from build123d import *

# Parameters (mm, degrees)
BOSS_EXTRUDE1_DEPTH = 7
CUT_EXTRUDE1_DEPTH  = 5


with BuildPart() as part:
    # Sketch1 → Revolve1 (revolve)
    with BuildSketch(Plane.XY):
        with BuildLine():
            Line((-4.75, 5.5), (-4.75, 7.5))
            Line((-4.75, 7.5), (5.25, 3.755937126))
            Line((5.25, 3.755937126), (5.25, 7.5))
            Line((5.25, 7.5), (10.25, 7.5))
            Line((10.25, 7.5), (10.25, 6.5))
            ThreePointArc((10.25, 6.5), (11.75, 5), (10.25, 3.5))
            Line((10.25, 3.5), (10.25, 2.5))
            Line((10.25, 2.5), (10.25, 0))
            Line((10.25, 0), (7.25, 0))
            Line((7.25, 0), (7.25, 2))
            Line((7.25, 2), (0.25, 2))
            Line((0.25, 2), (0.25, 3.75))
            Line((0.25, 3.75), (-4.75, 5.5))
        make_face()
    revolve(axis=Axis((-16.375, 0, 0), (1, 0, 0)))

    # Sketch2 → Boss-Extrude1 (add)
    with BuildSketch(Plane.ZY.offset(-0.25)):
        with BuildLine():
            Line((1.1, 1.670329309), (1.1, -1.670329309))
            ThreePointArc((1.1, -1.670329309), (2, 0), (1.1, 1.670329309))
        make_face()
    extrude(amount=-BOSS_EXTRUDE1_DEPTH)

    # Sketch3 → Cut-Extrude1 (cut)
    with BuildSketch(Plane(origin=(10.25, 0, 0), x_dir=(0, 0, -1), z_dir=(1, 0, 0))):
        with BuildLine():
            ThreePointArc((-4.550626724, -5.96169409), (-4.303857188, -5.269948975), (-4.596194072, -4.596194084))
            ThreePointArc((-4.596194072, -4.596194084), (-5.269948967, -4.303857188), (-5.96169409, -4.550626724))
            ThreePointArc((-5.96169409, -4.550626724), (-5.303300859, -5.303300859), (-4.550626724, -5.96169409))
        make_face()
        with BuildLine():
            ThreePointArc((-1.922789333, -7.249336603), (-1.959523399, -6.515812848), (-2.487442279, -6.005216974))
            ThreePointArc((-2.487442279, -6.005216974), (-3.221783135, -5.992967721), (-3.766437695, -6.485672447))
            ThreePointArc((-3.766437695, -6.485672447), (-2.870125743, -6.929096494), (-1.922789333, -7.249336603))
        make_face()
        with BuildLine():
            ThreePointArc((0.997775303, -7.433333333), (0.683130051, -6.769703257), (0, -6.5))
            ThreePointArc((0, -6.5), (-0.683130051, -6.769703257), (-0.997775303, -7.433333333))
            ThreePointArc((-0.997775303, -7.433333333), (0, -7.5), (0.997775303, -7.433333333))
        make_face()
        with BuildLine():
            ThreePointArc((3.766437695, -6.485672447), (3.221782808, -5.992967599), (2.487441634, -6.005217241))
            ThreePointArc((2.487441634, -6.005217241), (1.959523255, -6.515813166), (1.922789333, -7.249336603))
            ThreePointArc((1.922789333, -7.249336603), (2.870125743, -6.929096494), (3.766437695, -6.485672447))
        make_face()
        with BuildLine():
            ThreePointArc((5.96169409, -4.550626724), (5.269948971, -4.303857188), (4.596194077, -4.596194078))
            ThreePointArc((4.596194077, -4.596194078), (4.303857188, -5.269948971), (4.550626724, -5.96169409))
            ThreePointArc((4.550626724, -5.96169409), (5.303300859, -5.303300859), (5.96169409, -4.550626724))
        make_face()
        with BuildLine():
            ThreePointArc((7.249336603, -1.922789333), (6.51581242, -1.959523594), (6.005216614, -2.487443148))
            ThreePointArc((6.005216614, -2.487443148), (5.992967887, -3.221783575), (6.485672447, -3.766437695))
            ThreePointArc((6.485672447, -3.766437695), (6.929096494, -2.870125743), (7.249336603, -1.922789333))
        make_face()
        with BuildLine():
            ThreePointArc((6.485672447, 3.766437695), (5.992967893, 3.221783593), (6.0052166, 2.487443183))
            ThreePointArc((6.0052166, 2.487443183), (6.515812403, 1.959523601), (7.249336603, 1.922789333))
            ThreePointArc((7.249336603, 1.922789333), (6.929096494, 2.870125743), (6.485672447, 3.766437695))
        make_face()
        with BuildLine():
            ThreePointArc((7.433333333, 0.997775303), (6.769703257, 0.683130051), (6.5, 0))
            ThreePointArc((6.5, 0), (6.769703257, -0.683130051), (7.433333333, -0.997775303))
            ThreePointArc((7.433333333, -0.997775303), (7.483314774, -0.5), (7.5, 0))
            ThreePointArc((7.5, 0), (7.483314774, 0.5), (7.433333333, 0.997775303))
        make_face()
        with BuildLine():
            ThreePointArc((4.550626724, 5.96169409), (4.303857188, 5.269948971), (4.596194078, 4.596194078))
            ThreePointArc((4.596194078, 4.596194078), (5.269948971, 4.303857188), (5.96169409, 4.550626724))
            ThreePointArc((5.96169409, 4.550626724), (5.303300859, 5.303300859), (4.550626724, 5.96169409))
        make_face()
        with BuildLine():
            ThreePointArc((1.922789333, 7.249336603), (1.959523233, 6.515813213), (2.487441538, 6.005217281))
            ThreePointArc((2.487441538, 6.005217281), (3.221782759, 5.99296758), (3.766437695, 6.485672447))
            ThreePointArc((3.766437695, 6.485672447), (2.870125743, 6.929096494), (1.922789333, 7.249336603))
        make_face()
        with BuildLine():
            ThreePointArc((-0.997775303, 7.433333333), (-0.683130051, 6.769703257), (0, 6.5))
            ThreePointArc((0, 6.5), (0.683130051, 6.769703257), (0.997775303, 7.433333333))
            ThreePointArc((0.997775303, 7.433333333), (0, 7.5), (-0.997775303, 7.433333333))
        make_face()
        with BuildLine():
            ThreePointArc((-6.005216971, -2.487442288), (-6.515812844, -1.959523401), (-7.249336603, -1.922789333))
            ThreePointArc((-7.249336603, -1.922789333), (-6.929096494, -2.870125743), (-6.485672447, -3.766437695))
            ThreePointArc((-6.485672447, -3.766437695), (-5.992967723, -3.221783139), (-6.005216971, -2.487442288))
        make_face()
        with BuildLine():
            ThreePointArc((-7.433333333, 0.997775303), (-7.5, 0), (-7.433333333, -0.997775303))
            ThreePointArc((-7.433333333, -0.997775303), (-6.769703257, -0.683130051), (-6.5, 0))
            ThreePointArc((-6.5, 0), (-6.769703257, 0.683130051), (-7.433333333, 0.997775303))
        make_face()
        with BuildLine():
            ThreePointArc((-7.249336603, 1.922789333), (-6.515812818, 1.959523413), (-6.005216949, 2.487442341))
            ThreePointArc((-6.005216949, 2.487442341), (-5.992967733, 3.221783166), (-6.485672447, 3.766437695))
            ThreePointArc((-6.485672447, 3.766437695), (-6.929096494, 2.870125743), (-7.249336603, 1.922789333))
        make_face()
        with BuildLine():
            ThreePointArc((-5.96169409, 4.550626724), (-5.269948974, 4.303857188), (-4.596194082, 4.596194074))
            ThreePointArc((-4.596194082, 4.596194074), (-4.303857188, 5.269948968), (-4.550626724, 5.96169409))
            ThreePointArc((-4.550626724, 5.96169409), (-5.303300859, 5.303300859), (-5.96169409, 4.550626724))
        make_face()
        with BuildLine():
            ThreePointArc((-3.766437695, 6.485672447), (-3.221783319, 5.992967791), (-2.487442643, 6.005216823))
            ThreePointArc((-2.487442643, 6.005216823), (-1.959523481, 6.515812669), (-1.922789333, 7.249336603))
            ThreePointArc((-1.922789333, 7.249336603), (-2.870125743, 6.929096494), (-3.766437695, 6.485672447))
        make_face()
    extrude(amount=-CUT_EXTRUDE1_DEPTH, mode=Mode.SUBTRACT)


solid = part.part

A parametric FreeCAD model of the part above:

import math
import FreeCAD as App
import Part
import Sketcher

V = App.Vector
Q = App.Units.Quantity

doc = App.newDocument("Part")
body = doc.addObject("PartDesign::Body", "Body")

# Sketch on XY plane
sketch1 = body.newObject("Sketcher::SketchObject", "Sketch")
sketch1.AttachmentSupport = (doc.getObject("XY_Plane"), [""])
sketch1.MapMode = "FlatFace"
sketch1.addGeometry(Part.LineSegment(V(-4.8, 7.5, 0), V(-4.8, 5.5, 0)), False)
sketch1.addGeometry(Part.LineSegment(V(-4.8, 5.5, 0), V(0.2, 3.8, 0)), False)
sketch1.addGeometry(Part.LineSegment(V(0.2, 3.8, 0), V(0.2, 2, 0)), False)
sketch1.addGeometry(Part.LineSegment(V(0.2, 2, 0), V(7.2, 2, 0)), False)
sketch1.addGeometry(Part.LineSegment(V(7.2, 2, 0), V(7.2, 0, 0)), False)
sketch1.addGeometry(Part.LineSegment(V(7.2, 0, 0), V(10.2, 0, 0)), False)
sketch1.addGeometry(Part.LineSegment(V(10.2, 0, 0), V(10.2, 3.5, 0)), False)
sketch1.addGeometry(Part.ArcOfCircle(Part.Circle(V(10.2, 5, 0), V(0, 0, 1), 1.5), math.radians(-90), math.radians(90)), False)
sketch1.addGeometry(Part.LineSegment(V(10.2, 6.5, 0), V(10.2, 7.5, 0)), False)
sketch1.addGeometry(Part.LineSegment(V(10.2, 7.5, 0), V(5.2, 7.5, 0)), False)
sketch1.addGeometry(Part.LineSegment(V(5.2, 7.5, 0), V(5.2, 3.8, 0)), False)
sketch1.addGeometry(Part.LineSegment(V(5.2, 3.8, 0), V(-4.8, 7.5, 0)), False)
sketch1.addConstraint(Sketcher.Constraint("Coincident", 0, 2, 1, 1))
sketch1.addConstraint(Sketcher.Constraint("Coincident", 1, 2, 2, 1))
sketch1.addConstraint(Sketcher.Constraint("Coincident", 2, 2, 3, 1))
sketch1.addConstraint(Sketcher.Constraint("Coincident", 3, 2, 4, 1))
sketch1.addConstraint(Sketcher.Constraint("Coincident", 4, 2, 5, 1))
sketch1.addConstraint(Sketcher.Constraint("Coincident", 5, 2, 6, 1))
sketch1.addConstraint(Sketcher.Constraint("Coincident", 6, 2, 7, 1))
sketch1.addConstraint(Sketcher.Constraint("Coincident", 7, 2, 8, 1))
sketch1.addConstraint(Sketcher.Constraint("Coincident", 8, 2, 9, 1))
sketch1.addConstraint(Sketcher.Constraint("Coincident", 9, 2, 10, 1))
sketch1.addConstraint(Sketcher.Constraint("Coincident", 10, 2, 11, 1))
sketch1.addConstraint(Sketcher.Constraint("Coincident", 11, 2, 0, 1))
sketch1.addConstraint(Sketcher.Constraint("Vertical", 0))
sketch1.addConstraint(Sketcher.Constraint("Vertical", 2))
sketch1.addConstraint(Sketcher.Constraint("Horizontal", 3))
sketch1.addConstraint(Sketcher.Constraint("Vertical", 4))
sketch1.addConstraint(Sketcher.Constraint("Horizontal", 5))
sketch1.addConstraint(Sketcher.Constraint("Vertical", 6))
sketch1.addConstraint(Sketcher.Constraint("Vertical", 8))
sketch1.addConstraint(Sketcher.Constraint("Horizontal", 9))
sketch1.addConstraint(Sketcher.Constraint("Vertical", 10))
sketch1.addConstraint(Sketcher.Constraint("PointOnObject", 4, 2, -1))
sketch1.addConstraint(Sketcher.Constraint("Horizontal", 9, 2, 11, 2))
sketch1.addConstraint(Sketcher.Constraint("Vertical", 7, 3, 5, 2))
sketch1.addConstraint(Sketcher.Constraint("Vertical", 6, 2, 7, 2))
sketch1.addConstraint(Sketcher.Constraint("Equal", 0, 4))
sketch1.addConstraint(Sketcher.Constraint("Radius", 7, Q("1.5 mm")))
sketch1.addConstraint(Sketcher.Constraint("DistanceX", 3, 1, 3, 2, Q("7 mm")))
sketch1.addConstraint(Sketcher.Constraint("DistanceX", 5, 1, 5, 2, Q("3 mm")))
sketch1.addConstraint(Sketcher.Constraint("DistanceX", 9, 2, 9, 1, Q("5 mm")))
sketch1.addConstraint(Sketcher.Constraint("DistanceY", 0, 2, 0, 1, Q("2 mm")))
sketch1.addConstraint(Sketcher.Constraint("DistanceY", 8, 1, 8, 2, Q("1 mm")))
sketch1.addConstraint(Sketcher.Constraint("DistanceY", 6, 1, 6, 2, Q("3.5 mm")))
sketch1.addConstraint(Sketcher.Constraint("DistanceX", 0, 2, 7, 3, Q("15 mm")))
sketch1.addConstraint(Sketcher.Constraint("DistanceY", 2, 2, 2, 1, Q("1.75 mm")))
sketch1.addConstraint(Sketcher.Constraint("DistanceX", -1, 1, 7, 3, Q("10.25 mm")))
sketch1.addConstraint(Sketcher.Constraint("Distance", 11, Q("10.677921 mm")))
revolution = body.newObject("PartDesign::Revolution", "Revolution")
revolution.Profile = sketch1
revolution.ReferenceAxis = (sketch1, ["H_Axis"])
revolution.Angle = 360

# Sketch on YZ plane
sketch2 = body.newObject("Sketcher::SketchObject", "Sketch001")
sketch2.AttachmentSupport = (doc.getObject("YZ_Plane"), [""])
sketch2.MapMode = "FlatFace"
sketch2.AttachmentOffset = App.Placement(V(0, 0, 0.25), App.Rotation())
sketch2.addGeometry(Part.LineSegment(V(1.7, 1.1, 0), V(-1.7, 1.1, 0)), False)
sketch2.addGeometry(Part.ArcOfCircle(Part.Circle(V(0, 0, 0), V(0, 0, 1), 2), math.radians(33), math.radians(147)), False)
sketch2.addConstraint(Sketcher.Constraint("Coincident", 0, 1, 1, 1))
sketch2.addConstraint(Sketcher.Constraint("Coincident", 1, 2, 0, 2))
sketch2.addConstraint(Sketcher.Constraint("Horizontal", 0))
sketch2.addConstraint(Sketcher.Constraint("Coincident", 1, 3, -1, 1))
sketch2.addConstraint(Sketcher.Constraint("Radius", 1, Q("2 mm")))
sketch2.addConstraint(Sketcher.Constraint("DistanceY", -1, 1, 0, 1, Q("1.1 mm")))
pad1 = body.newObject("PartDesign::Pad", "Pad")
pad1.Profile = sketch2
pad1.Length = 7

# Sketch on YZ plane
sketch3 = body.newObject("Sketcher::SketchObject", "Sketch002")
sketch3.AttachmentSupport = (doc.getObject("YZ_Plane"), [""])
sketch3.MapMode = "FlatFace"
sketch3.AttachmentOffset = App.Placement(V(0, 0, 10.25), App.Rotation())
sketch3.addGeometry(Part.ArcOfCircle(Part.Circle(V(-5.3, 5.3, 0), V(0, 0, 1), 1), math.radians(-131), math.radians(-45)), False)
sketch3.addGeometry(Part.ArcOfCircle(Part.Circle(V(-5.3, 5.3, 0), V(0, 0, 1), 1), math.radians(-45), math.radians(41)), False)
sketch3.addGeometry(Part.ArcOfCircle(Part.Circle(V(0, 0, 0), V(0, 0, 1), 7.5), math.radians(127.35), math.radians(142.65)), False)
sketch3.addGeometry(Part.ArcOfCircle(Part.Circle(V(-6.9, 2.9, 0), V(0, 0, 1), 1), math.radians(-109), math.radians(-23)), False)
sketch3.addGeometry(Part.ArcOfCircle(Part.Circle(V(-6.9, 2.9, 0), V(0, 0, 1), 1), math.radians(-23), math.radians(64)), False)
sketch3.addGeometry(Part.ArcOfCircle(Part.Circle(V(0, 0, 0), V(0, 0, 1), 7.5), math.radians(149.85), math.radians(165.15)), False)
sketch3.addGeometry(Part.ArcOfCircle(Part.Circle(V(-7.5, 0, 0), V(0, 0, 1), 1), math.radians(-86), math.radians(0)), False)
sketch3.addGeometry(Part.ArcOfCircle(Part.Circle(V(-7.5, 0, 0), V(0, 0, 1), 1), math.radians(0), math.radians(86)), False)
sketch3.addGeometry(Part.ArcOfCircle(Part.Circle(V(0, 0, 0), V(0, 0, 1), 7.5), math.radians(172.35), math.radians(187.65)), False)
sketch3.addGeometry(Part.ArcOfCircle(Part.Circle(V(-6.9, -2.9, 0), V(0, 0, 1), 1), math.radians(-64), math.radians(23)), False)
sketch3.addGeometry(Part.ArcOfCircle(Part.Circle(V(-6.9, -2.9, 0), V(0, 0, 1), 1), math.radians(23), math.radians(109)), False)
sketch3.addGeometry(Part.ArcOfCircle(Part.Circle(V(0, 0, 0), V(0, 0, 1), 7.5), math.radians(-165.15), math.radians(-149.85)), False)
sketch3.addGeometry(Part.ArcOfCircle(Part.Circle(V(-5.3, -5.3, 0), V(0, 0, 1), 1), math.radians(-41), math.radians(45)), False)
sketch3.addGeometry(Part.ArcOfCircle(Part.Circle(V(-5.3, -5.3, 0), V(0, 0, 1), 1), math.radians(45), math.radians(131)), False)
sketch3.addGeometry(Part.ArcOfCircle(Part.Circle(V(0, 0, 0), V(0, 0, 1), 7.5), math.radians(-142.65), math.radians(-127.35)), False)
sketch3.addGeometry(Part.ArcOfCircle(Part.Circle(V(-2.9, -6.9, 0), V(0, 0, 1), 1), math.radians(-19), math.radians(68)), False)
sketch3.addGeometry(Part.ArcOfCircle(Part.Circle(V(-2.9, -6.9, 0), V(0, 0, 1), 1), math.radians(68), math.radians(154)), False)
sketch3.addGeometry(Part.ArcOfCircle(Part.Circle(V(0, 0, 0), V(0, 0, 1), 7.5), math.radians(-120.15), math.radians(-104.85)), False)
sketch3.addGeometry(Part.ArcOfCircle(Part.Circle(V(2.9, -6.9, 0), V(0, 0, 1), 1), math.radians(26), math.radians(112)), False)
sketch3.addGeometry(Part.ArcOfCircle(Part.Circle(V(2.9, -6.9, 0), V(0, 0, 1), 1), math.radians(112), math.radians(199)), False)
sketch3.addGeometry(Part.ArcOfCircle(Part.Circle(V(0, 0, 0), V(0, 0, 1), 7.5), math.radians(-75.15), math.radians(-59.85)), False)
sketch3.addGeometry(Part.ArcOfCircle(Part.Circle(V(0, -7.5, 0), V(0, 0, 1), 1), math.radians(4), math.radians(90)), False)
sketch3.addGeometry(Part.ArcOfCircle(Part.Circle(V(0, -7.5, 0), V(0, 0, 1), 1), math.radians(90), math.radians(176)), False)
sketch3.addGeometry(Part.ArcOfCircle(Part.Circle(V(0, 0, 0), V(0, 0, 1), 7.5), math.radians(-97.65), math.radians(-90)), False)
sketch3.addGeometry(Part.ArcOfCircle(Part.Circle(V(0, 0, 0), V(0, 0, 1), 7.5), math.radians(-90), math.radians(-82.35)), False)
sketch3.addGeometry(Part.ArcOfCircle(Part.Circle(V(5.3, -5.3, 0), V(0, 0, 1), 1), math.radians(49), math.radians(135)), False)
sketch3.addGeometry(Part.ArcOfCircle(Part.Circle(V(5.3, -5.3, 0), V(0, 0, 1), 1), math.radians(135), math.radians(221)), False)
sketch3.addGeometry(Part.ArcOfCircle(Part.Circle(V(0, 0, 0), V(0, 0, 1), 7.5), math.radians(-52.65), math.radians(-37.35)), False)
sketch3.addGeometry(Part.ArcOfCircle(Part.Circle(V(6.9, -2.9, 0), V(0, 0, 1), 1), math.radians(71), math.radians(157)), False)
sketch3.addGeometry(Part.ArcOfCircle(Part.Circle(V(6.9, -2.9, 0), V(0, 0, 1), 1), math.radians(157), math.radians(244)), False)
sketch3.addGeometry(Part.ArcOfCircle(Part.Circle(V(0, 0, 0), V(0, 0, 1), 7.5), math.radians(-30.15), math.radians(-14.85)), False)
sketch3.addGeometry(Part.ArcOfCircle(Part.Circle(V(7.5, 0, 0), V(0, 0, 1), 1), math.radians(94), math.radians(180)), False)
sketch3.addGeometry(Part.ArcOfCircle(Part.Circle(V(7.5, 0, 0), V(0, 0, 1), 1), math.radians(-180), math.radians(-94)), False)
sketch3.addGeometry(Part.ArcOfCircle(Part.Circle(V(0, 0, 0), V(0, 0, 1), 7.5), math.radians(-7.65), math.radians(7.65)), False)
sketch3.addGeometry(Part.ArcOfCircle(Part.Circle(V(-2.9, 6.9, 0), V(0, 0, 1), 1), math.radians(-67), math.radians(19)), False)
sketch3.addGeometry(Part.ArcOfCircle(Part.Circle(V(0, 0, 0), V(0, 0, 1), 7.5), math.radians(104.85), math.radians(120.15)), False)
sketch3.addGeometry(Part.ArcOfCircle(Part.Circle(V(-2.9, 6.9, 0), V(0, 0, 1), 1), math.radians(-154), math.radians(-67)), False)
sketch3.addGeometry(Part.ArcOfCircle(Part.Circle(V(0, 0, 0), V(0, 0, 1), 7.5), math.radians(82.35), math.radians(97.65)), False)
sketch3.addGeometry(Part.ArcOfCircle(Part.Circle(V(0, 7.5, 0), V(0, 0, 1), 1), math.radians(-176), math.radians(-90)), False)
sketch3.addGeometry(Part.ArcOfCircle(Part.Circle(V(0, 7.5, 0), V(0, 0, 1), 1), math.radians(-90), math.radians(-4)), False)
sketch3.addGeometry(Part.ArcOfCircle(Part.Circle(V(2.9, 6.9, 0), V(0, 0, 1), 1), math.radians(161), math.radians(248)), False)
sketch3.addGeometry(Part.ArcOfCircle(Part.Circle(V(2.9, 6.9, 0), V(0, 0, 1), 1), math.radians(-112), math.radians(-26)), False)
sketch3.addGeometry(Part.ArcOfCircle(Part.Circle(V(0, 0, 0), V(0, 0, 1), 7.5), math.radians(59.85), math.radians(75.15)), False)
sketch3.addGeometry(Part.ArcOfCircle(Part.Circle(V(5.3, 5.3, 0), V(0, 0, 1), 1), math.radians(139), math.radians(225)), False)
sketch3.addGeometry(Part.ArcOfCircle(Part.Circle(V(5.3, 5.3, 0), V(0, 0, 1), 1), math.radians(-135), math.radians(-49)), False)
sketch3.addGeometry(Part.ArcOfCircle(Part.Circle(V(0, 0, 0), V(0, 0, 1), 7.5), math.radians(37.35), math.radians(52.65)), False)
sketch3.addGeometry(Part.ArcOfCircle(Part.Circle(V(6.9, 2.9, 0), V(0, 0, 1), 1), math.radians(116), math.radians(202)), False)
sketch3.addGeometry(Part.ArcOfCircle(Part.Circle(V(6.9, 2.9, 0), V(0, 0, 1), 1), math.radians(-158), math.radians(-71)), False)
sketch3.addGeometry(Part.ArcOfCircle(Part.Circle(V(0, 0, 0), V(0, 0, 1), 7.5), math.radians(14.85), math.radians(30.15)), False)
sketch3.addConstraint(Sketcher.Constraint("Tangent", 0, 2, 1, 1))
sketch3.addConstraint(Sketcher.Constraint("Coincident", 1, 2, 2, 1))
sketch3.addConstraint(Sketcher.Constraint("Coincident", 2, 2, 0, 1))
sketch3.addConstraint(Sketcher.Constraint("Tangent", 3, 2, 4, 1))
sketch3.addConstraint(Sketcher.Constraint("Coincident", 4, 2, 5, 1))
sketch3.addConstraint(Sketcher.Constraint("Coincident", 5, 2, 3, 1))
sketch3.addConstraint(Sketcher.Constraint("Tangent", 6, 2, 7, 1))
sketch3.addConstraint(Sketcher.Constraint("Coincident", 7, 2, 8, 1))
sketch3.addConstraint(Sketcher.Constraint("Coincident", 8, 2, 6, 1))
sketch3.addConstraint(Sketcher.Constraint("Tangent", 9, 2, 10, 1))
sketch3.addConstraint(Sketcher.Constraint("Coincident", 10, 2, 11, 1))
sketch3.addConstraint(Sketcher.Constraint("Coincident", 11, 2, 9, 1))
sketch3.addConstraint(Sketcher.Constraint("Tangent", 12, 2, 13, 1))
sketch3.addConstraint(Sketcher.Constraint("Coincident", 13, 2, 14, 1))
sketch3.addConstraint(Sketcher.Constraint("Coincident", 14, 2, 12, 1))
sketch3.addConstraint(Sketcher.Constraint("Tangent", 15, 2, 16, 1))
sketch3.addConstraint(Sketcher.Constraint("Coincident", 16, 2, 17, 1))
sketch3.addConstraint(Sketcher.Constraint("Coincident", 17, 2, 15, 1))
sketch3.addConstraint(Sketcher.Constraint("Tangent", 18, 2, 19, 1))
sketch3.addConstraint(Sketcher.Constraint("Coincident", 19, 2, 20, 1))
sketch3.addConstraint(Sketcher.Constraint("Coincident", 20, 2, 18, 1))
sketch3.addConstraint(Sketcher.Constraint("Tangent", 21, 2, 22, 1))
sketch3.addConstraint(Sketcher.Constraint("Coincident", 22, 2, 23, 1))
sketch3.addConstraint(Sketcher.Constraint("Tangent", 23, 2, 24, 1))
sketch3.addConstraint(Sketcher.Constraint("Coincident", 24, 2, 21, 1))
sketch3.addConstraint(Sketcher.Constraint("Tangent", 25, 2, 26, 1))
sketch3.addConstraint(Sketcher.Constraint("Coincident", 26, 2, 27, 1))
sketch3.addConstraint(Sketcher.Constraint("Coincident", 27, 2, 25, 1))
sketch3.addConstraint(Sketcher.Constraint("Tangent", 28, 2, 29, 1))
sketch3.addConstraint(Sketcher.Constraint("Coincident", 29, 2, 30, 1))
sketch3.addConstraint(Sketcher.Constraint("Coincident", 30, 2, 28, 1))
sketch3.addConstraint(Sketcher.Constraint("Tangent", 31, 2, 32, 1))
sketch3.addConstraint(Sketcher.Constraint("Coincident", 32, 2, 33, 1))
sketch3.addConstraint(Sketcher.Constraint("Coincident", 33, 2, 31, 1))
sketch3.addConstraint(Sketcher.Constraint("Coincident", 34, 2, 35, 1))
sketch3.addConstraint(Sketcher.Constraint("Coincident", 35, 2, 36, 1))
sketch3.addConstraint(Sketcher.Constraint("Tangent", 36, 2, 34, 1))
sketch3.addConstraint(Sketcher.Constraint("Coincident", 37, 2, 38, 1))
sketch3.addConstraint(Sketcher.Constraint("Tangent", 38, 2, 39, 1))
sketch3.addConstraint(Sketcher.Constraint("Coincident", 39, 2, 37, 1))
sketch3.addConstraint(Sketcher.Constraint("Tangent", 40, 2, 41, 1))
sketch3.addConstraint(Sketcher.Constraint("Coincident", 41, 2, 42, 1))
sketch3.addConstraint(Sketcher.Constraint("Coincident", 42, 2, 40, 1))
sketch3.addConstraint(Sketcher.Constraint("Tangent", 43, 2, 44, 1))
sketch3.addConstraint(Sketcher.Constraint("Coincident", 44, 2, 45, 1))
sketch3.addConstraint(Sketcher.Constraint("Coincident", 45, 2, 43, 1))
sketch3.addConstraint(Sketcher.Constraint("Tangent", 46, 2, 47, 1))
sketch3.addConstraint(Sketcher.Constraint("Coincident", 47, 2, 48, 1))
sketch3.addConstraint(Sketcher.Constraint("Coincident", 48, 2, 46, 1))
sketch3.addConstraint(Sketcher.Constraint("Coincident", 2, 3, -1, 1))
sketch3.addConstraint(Sketcher.Constraint("Coincident", 5, 3, -1, 1))
sketch3.addConstraint(Sketcher.Constraint("Coincident", 8, 3, -1, 1))
sketch3.addConstraint(Sketcher.Constraint("Coincident", 11, 3, -1, 1))
sketch3.addConstraint(Sketcher.Constraint("Coincident", 14, 3, -1, 1))
sketch3.addConstraint(Sketcher.Constraint("Coincident", 17, 3, -1, 1))
sketch3.addConstraint(Sketcher.Constraint("Coincident", 20, 3, -1, 1))
sketch3.addConstraint(Sketcher.Constraint("Coincident", 23, 3, -1, 1))
sketch3.addConstraint(Sketcher.Constraint("Coincident", 27, 3, -1, 1))
sketch3.addConstraint(Sketcher.Constraint("Coincident", 30, 3, -1, 1))
sketch3.addConstraint(Sketcher.Constraint("Coincident", 33, 3, -1, 1))
sketch3.addConstraint(Sketcher.Constraint("Coincident", 35, 3, -1, 1))
sketch3.addConstraint(Sketcher.Constraint("Coincident", 37, 3, -1, 1))
sketch3.addConstraint(Sketcher.Constraint("Coincident", 42, 3, -1, 1))
sketch3.addConstraint(Sketcher.Constraint("Coincident", 45, 3, -1, 1))
sketch3.addConstraint(Sketcher.Constraint("Coincident", 48, 3, -1, 1))
sketch3.addConstraint(Sketcher.Constraint("Coincident", 23, 2, 21, 3))
sketch3.addConstraint(Sketcher.Constraint("Equal", 0, 1))
sketch3.addConstraint(Sketcher.Constraint("Equal", 1, 3))
sketch3.addConstraint(Sketcher.Constraint("Equal", 3, 4))
sketch3.addConstraint(Sketcher.Constraint("Equal", 2, 5))
sketch3.addConstraint(Sketcher.Constraint("Equal", 4, 6))
sketch3.addConstraint(Sketcher.Constraint("Equal", 6, 7))
sketch3.addConstraint(Sketcher.Constraint("Equal", 5, 8))
sketch3.addConstraint(Sketcher.Constraint("Equal", 7, 9))
sketch3.addConstraint(Sketcher.Constraint("Equal", 9, 10))
sketch3.addConstraint(Sketcher.Constraint("Equal", 8, 11))
sketch3.addConstraint(Sketcher.Constraint("Equal", 10, 12))
sketch3.addConstraint(Sketcher.Constraint("Equal", 12, 13))
sketch3.addConstraint(Sketcher.Constraint("Equal", 11, 14))
sketch3.addConstraint(Sketcher.Constraint("Equal", 13, 15))
sketch3.addConstraint(Sketcher.Constraint("Equal", 15, 16))
sketch3.addConstraint(Sketcher.Constraint("Equal", 14, 17))
sketch3.addConstraint(Sketcher.Constraint("Equal", 16, 18))
sketch3.addConstraint(Sketcher.Constraint("Equal", 18, 19))
sketch3.addConstraint(Sketcher.Constraint("Equal", 17, 20))
sketch3.addConstraint(Sketcher.Constraint("Equal", 19, 21))
sketch3.addConstraint(Sketcher.Constraint("Equal", 21, 22))
sketch3.addConstraint(Sketcher.Constraint("Equal", 20, 23))
sketch3.addConstraint(Sketcher.Constraint("Equal", 23, 24))
sketch3.addConstraint(Sketcher.Constraint("Equal", 22, 25))
sketch3.addConstraint(Sketcher.Constraint("Equal", 25, 26))
sketch3.addConstraint(Sketcher.Constraint("Equal", 24, 27))
sketch3.addConstraint(Sketcher.Constraint("Equal", 26, 28))
sketch3.addConstraint(Sketcher.Constraint("Equal", 28, 29))
sketch3.addConstraint(Sketcher.Constraint("Equal", 27, 30))
sketch3.addConstraint(Sketcher.Constraint("Equal", 29, 31))
sketch3.addConstraint(Sketcher.Constraint("Equal", 31, 32))
sketch3.addConstraint(Sketcher.Constraint("Equal", 30, 33))
sketch3.addConstraint(Sketcher.Constraint("Equal", 32, 34))
sketch3.addConstraint(Sketcher.Constraint("Equal", 33, 35))
sketch3.addConstraint(Sketcher.Constraint("Equal", 34, 36))
sketch3.addConstraint(Sketcher.Constraint("Equal", 35, 37))
sketch3.addConstraint(Sketcher.Constraint("Equal", 36, 38))
sketch3.addConstraint(Sketcher.Constraint("Equal", 38, 39))
sketch3.addConstraint(Sketcher.Constraint("Equal", 39, 40))
sketch3.addConstraint(Sketcher.Constraint("Equal", 40, 41))
sketch3.addConstraint(Sketcher.Constraint("Equal", 37, 42))
sketch3.addConstraint(Sketcher.Constraint("Equal", 41, 43))
sketch3.addConstraint(Sketcher.Constraint("Equal", 43, 44))
sketch3.addConstraint(Sketcher.Constraint("Equal", 42, 45))
sketch3.addConstraint(Sketcher.Constraint("Equal", 44, 46))
sketch3.addConstraint(Sketcher.Constraint("Equal", 46, 47))
sketch3.addConstraint(Sketcher.Constraint("Equal", 45, 48))
sketch3.addConstraint(Sketcher.Constraint("Symmetric", 0, 3, 25, 3, -1, 1))
sketch3.addConstraint(Sketcher.Constraint("Symmetric", 3, 3, 28, 3, -1, 1))
sketch3.addConstraint(Sketcher.Constraint("Symmetric", 6, 3, 31, 3, -1, 1))
sketch3.addConstraint(Sketcher.Constraint("Symmetric", 18, 3, 34, 3, -1, 1))
sketch3.addConstraint(Sketcher.Constraint("Symmetric", 21, 3, 38, 3, -1, 1))
sketch3.addConstraint(Sketcher.Constraint("Symmetric", 15, 3, 40, 3, -1, 1))
sketch3.addConstraint(Sketcher.Constraint("Symmetric", 12, 3, 43, 3, -1, 1))
sketch3.addConstraint(Sketcher.Constraint("Symmetric", 9, 3, 46, 3, -1, 1))
sketch3.addConstraint(Sketcher.Constraint("Symmetric", 15, 3, 18, 3, -2))
sketch3.addConstraint(Sketcher.Constraint("Symmetric", 12, 3, 25, 3, -2))
sketch3.addConstraint(Sketcher.Constraint("Symmetric", 9, 3, 28, 3, -2))
sketch3.addConstraint(Sketcher.Constraint("PointOnObject", 6, 3, -1))
sketch3.addConstraint(Sketcher.Constraint("PointOnObject", 21, 3, -2))
sketch3.addConstraint(Sketcher.Constraint("PointOnObject", 6, 2, -1))
sketch3.addConstraint(Sketcher.Constraint("PointOnObject", 21, 2, -2))
sketch3.addConstraint(Sketcher.Constraint("PointOnObject", 31, 2, -1))
sketch3.addConstraint(Sketcher.Constraint("PointOnObject", 38, 2, -2))
sketch3.addConstraint(Sketcher.Constraint("Horizontal", 15, 2, 18, 2))
sketch3.addConstraint(Sketcher.Constraint("Horizontal", 12, 2, 25, 2))
sketch3.addConstraint(Sketcher.Constraint("Horizontal", 9, 2, 28, 2))
sketch3.addConstraint(Sketcher.Constraint("Horizontal", 36, 2, 40, 2))
sketch3.addConstraint(Sketcher.Constraint("Horizontal", 0, 2, 43, 2))
sketch3.addConstraint(Sketcher.Constraint("Horizontal", 3, 2, 46, 2))
sketch3.addConstraint(Sketcher.Constraint("Vertical", 3, 2, 9, 2))
sketch3.addConstraint(Sketcher.Constraint("Vertical", 0, 2, 12, 2))
sketch3.addConstraint(Sketcher.Constraint("Vertical", 15, 2, 36, 2))
sketch3.addConstraint(Sketcher.Constraint("Radius", 0, Q("1 mm")))
sketch3.addConstraint(Sketcher.Constraint("Radius", 2, Q("7.5 mm")))
sketch3.addConstraint(Sketcher.Constraint("DistanceX", 6, 3, -1, 1, Q("7.5 mm")))
sketch3.addConstraint(Sketcher.Constraint("DistanceX", 0, 3, -1, 1, Q("5.303301 mm")))
sketch3.addConstraint(Sketcher.Constraint("DistanceY", -1, 1, 0, 3, Q("5.303301 mm")))
sketch3.addConstraint(Sketcher.Constraint("DistanceY", -1, 1, 5, 2, Q("1.922789 mm")))
sketch3.addConstraint(Sketcher.Constraint("DistanceY", 9, 2, -1, 1, Q("2.487442 mm")))
sketch3.addConstraint(Sketcher.Constraint("DistanceX", 17, 2, -1, 1, Q("1.922789 mm")))
sketch3.addConstraint(Sketcher.Constraint("DistanceX", 3, 3, -1, 1, Q("6.929096 mm")))
sketch3.addConstraint(Sketcher.Constraint("DistanceX", 15, 3, -1, 1, Q("2.870126 mm")))
sketch3.addConstraint(Sketcher.Constraint("DistanceX", 0, 2, -1, 1, Q("4.596194 mm")))
sketch3.addConstraint(Sketcher.Constraint("DistanceX", 15, 2, -1, 1, Q("2.487443 mm")))
pocket1 = body.newObject("PartDesign::Pocket", "Pocket")
pocket1.Profile = sketch3
pocket1.Length = 5

doc.recompute()
